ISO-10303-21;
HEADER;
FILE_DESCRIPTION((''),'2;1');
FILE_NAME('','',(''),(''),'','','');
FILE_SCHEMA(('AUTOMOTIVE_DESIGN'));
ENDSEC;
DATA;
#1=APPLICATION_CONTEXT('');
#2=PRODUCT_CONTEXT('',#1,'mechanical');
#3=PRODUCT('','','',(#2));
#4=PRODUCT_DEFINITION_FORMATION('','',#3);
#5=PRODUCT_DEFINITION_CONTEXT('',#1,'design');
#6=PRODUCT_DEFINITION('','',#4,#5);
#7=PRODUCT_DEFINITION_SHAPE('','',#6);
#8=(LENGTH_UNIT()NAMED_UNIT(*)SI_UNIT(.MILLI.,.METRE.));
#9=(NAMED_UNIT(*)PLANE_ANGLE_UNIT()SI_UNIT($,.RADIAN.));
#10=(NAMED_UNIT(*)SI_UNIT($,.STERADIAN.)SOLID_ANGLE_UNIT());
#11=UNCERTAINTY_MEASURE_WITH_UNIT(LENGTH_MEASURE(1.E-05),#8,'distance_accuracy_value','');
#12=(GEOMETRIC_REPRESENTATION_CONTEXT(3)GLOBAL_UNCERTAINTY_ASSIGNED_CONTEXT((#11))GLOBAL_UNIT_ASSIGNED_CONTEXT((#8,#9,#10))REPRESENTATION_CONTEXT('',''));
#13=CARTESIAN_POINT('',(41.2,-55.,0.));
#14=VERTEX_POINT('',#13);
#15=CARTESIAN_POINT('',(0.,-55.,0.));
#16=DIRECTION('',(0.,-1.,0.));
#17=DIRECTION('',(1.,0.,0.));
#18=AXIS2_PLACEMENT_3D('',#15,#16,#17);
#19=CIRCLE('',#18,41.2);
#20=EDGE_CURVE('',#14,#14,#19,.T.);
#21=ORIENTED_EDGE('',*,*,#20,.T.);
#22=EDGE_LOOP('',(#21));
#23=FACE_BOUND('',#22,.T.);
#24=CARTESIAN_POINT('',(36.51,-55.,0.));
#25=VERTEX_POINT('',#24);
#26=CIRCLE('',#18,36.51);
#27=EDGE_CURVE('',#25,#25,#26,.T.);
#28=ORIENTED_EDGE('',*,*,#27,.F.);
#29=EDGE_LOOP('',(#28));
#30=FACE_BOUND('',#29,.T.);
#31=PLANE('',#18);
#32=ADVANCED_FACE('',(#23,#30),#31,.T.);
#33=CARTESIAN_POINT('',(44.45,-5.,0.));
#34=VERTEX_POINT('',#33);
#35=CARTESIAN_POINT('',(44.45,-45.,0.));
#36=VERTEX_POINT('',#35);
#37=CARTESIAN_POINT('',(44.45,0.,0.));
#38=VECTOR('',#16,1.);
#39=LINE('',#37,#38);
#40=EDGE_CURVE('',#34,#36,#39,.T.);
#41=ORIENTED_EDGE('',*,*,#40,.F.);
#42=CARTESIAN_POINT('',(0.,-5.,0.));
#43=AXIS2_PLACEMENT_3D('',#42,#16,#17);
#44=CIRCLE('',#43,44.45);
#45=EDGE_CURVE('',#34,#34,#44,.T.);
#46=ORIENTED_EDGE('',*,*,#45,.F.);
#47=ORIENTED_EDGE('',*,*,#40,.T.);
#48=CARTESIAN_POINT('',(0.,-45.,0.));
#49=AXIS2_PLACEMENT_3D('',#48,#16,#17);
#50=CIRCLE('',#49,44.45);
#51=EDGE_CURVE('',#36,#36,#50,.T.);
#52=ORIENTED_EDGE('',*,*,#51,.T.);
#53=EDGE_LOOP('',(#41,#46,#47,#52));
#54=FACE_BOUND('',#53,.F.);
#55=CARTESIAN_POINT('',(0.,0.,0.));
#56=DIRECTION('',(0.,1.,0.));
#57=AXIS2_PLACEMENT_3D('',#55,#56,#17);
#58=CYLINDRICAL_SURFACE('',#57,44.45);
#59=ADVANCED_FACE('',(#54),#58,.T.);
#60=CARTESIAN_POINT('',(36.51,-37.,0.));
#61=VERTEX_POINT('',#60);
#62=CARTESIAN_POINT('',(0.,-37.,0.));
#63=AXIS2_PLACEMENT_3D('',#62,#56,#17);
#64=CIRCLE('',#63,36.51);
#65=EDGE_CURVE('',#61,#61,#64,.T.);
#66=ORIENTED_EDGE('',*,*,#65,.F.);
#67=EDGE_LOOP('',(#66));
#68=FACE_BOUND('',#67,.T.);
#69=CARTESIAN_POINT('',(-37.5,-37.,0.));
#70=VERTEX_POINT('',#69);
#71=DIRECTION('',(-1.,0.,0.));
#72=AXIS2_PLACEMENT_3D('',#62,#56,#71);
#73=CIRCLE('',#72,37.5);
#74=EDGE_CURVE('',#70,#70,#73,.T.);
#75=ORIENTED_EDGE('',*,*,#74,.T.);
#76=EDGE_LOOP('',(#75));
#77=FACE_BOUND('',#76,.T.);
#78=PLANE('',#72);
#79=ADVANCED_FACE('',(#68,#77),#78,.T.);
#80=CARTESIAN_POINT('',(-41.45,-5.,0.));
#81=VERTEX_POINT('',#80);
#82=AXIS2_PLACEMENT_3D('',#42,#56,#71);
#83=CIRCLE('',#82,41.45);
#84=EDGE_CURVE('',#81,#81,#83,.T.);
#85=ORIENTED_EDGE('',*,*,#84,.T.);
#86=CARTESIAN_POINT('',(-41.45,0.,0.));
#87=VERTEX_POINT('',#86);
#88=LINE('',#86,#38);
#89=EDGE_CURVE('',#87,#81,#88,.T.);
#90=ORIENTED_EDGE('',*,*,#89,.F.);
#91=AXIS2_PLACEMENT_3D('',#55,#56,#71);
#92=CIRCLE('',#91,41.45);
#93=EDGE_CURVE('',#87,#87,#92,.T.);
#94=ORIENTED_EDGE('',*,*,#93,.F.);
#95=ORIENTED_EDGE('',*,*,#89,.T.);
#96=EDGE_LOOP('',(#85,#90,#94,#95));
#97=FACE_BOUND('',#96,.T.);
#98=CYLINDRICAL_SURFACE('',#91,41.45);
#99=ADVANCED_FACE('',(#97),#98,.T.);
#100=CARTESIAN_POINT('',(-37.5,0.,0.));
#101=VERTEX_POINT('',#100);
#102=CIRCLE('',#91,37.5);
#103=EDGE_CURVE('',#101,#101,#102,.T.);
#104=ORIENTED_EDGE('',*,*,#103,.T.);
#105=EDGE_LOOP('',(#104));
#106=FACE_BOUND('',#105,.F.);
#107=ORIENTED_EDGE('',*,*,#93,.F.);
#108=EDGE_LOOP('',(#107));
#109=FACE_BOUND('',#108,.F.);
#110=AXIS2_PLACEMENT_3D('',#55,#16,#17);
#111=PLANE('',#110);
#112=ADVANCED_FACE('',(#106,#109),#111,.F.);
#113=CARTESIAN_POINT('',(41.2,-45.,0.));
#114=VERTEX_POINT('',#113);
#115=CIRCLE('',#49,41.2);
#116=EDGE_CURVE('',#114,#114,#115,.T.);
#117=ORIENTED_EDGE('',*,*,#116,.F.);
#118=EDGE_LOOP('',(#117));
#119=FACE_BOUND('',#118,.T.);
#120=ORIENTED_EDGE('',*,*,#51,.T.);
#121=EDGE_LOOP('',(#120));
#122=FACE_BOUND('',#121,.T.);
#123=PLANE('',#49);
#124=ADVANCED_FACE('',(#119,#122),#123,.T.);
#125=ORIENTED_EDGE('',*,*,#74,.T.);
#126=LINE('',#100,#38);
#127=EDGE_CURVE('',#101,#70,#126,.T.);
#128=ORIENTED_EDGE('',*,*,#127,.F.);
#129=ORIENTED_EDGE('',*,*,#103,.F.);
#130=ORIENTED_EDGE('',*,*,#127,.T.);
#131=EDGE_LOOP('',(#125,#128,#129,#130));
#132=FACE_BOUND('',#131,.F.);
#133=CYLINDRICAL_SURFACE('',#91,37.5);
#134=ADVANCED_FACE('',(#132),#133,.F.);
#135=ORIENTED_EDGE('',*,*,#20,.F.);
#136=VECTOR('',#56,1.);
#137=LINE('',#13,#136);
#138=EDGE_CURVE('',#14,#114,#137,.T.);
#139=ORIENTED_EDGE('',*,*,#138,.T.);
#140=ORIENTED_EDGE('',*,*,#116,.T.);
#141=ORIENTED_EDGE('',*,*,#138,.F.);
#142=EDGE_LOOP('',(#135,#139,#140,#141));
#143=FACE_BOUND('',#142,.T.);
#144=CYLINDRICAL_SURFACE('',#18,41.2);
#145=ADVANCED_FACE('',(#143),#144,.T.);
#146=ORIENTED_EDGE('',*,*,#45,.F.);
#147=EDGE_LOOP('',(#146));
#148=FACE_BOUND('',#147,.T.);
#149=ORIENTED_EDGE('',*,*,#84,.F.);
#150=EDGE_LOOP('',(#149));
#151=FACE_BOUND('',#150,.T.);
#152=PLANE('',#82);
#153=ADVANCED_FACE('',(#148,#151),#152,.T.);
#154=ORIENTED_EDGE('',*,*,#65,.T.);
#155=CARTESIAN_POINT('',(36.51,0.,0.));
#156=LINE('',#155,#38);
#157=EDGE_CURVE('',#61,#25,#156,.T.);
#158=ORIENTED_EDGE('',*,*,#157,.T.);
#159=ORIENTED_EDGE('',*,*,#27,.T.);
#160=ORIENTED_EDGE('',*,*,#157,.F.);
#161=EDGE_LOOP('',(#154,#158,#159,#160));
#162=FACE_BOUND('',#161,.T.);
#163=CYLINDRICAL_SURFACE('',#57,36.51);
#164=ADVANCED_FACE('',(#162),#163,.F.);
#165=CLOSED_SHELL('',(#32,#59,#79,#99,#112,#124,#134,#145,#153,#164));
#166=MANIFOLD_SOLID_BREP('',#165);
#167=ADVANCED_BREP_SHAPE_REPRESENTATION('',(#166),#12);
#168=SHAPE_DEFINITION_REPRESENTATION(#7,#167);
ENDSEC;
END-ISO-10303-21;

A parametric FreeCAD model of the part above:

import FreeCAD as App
import Part
import Sketcher
from FreeCAD import Vector

doc = App.newDocument("Part")
params = doc.addObject("Spreadsheet::Sheet", "Params")
for row, (alias, value) in enumerate([
    ("sketch1_diameter", "88.9 mm"),
    ("sketch1_diameter2", "73.02 mm"),
    ("pad1_length", "55 mm"),
    ("sketch2_diameter", "88.9 mm"),
    ("sketch2_diameter2", "82.4 mm"),
    ("pocket1_length", "10 mm"),
    ("sketch3_diameter", "88.9 mm"),
    ("sketch3_diameter2", "82.9 mm"),
    ("pocket2_length", "5 mm"),
    ("sketch4_diameter", "75 mm"),
    ("sketch4_diameter2", "73.02 mm"),
    ("pocket3_length", "37 mm"),
], start=1):
    params.set(f"A{row}", alias)
    params.set(f"B{row}", "=" + value)
    params.setAlias(f"B{row}", alias)

body = doc.addObject("PartDesign::Body", "Body")

# Sketch on XZ plane
sketch1 = body.newObject("Sketcher::SketchObject", "Sketch")
sketch1.AttachmentSupport = (doc.getObject("XZ_Plane"), [""])
sketch1.MapMode = "FlatFace"
sketch1.addGeometry([
    Part.Circle(Vector(0, 0, 0), Vector(0, 0, 1), 44),
    Part.Circle(Vector(0, 0, 0), Vector(0, 0, 1), 37),
], False)
sketch1.addConstraint([
    Sketcher.Constraint("Coincident", 0, 3, -1, 1),
    Sketcher.Constraint("Coincident", 1, 3, -1, 1),
    Sketcher.Constraint("Diameter", 0, 88.9),
    Sketcher.Constraint("Diameter", 1, 73.02),
])
sketch1.setExpression("Constraints[2]", "Params.sketch1_diameter")
sketch1.setExpression("Constraints[3]", "Params.sketch1_diameter2")
pad1 = body.newObject("PartDesign::Pad", "Pad")
pad1.Profile = sketch1
pad1.setExpression("Length", "Params.pad1_length")

# Sketch on XZ plane
sketch2 = body.newObject("Sketcher::SketchObject", "Sketch001")
sketch2.AttachmentSupport = (doc.getObject("XZ_Plane"), [""])
sketch2.MapMode = "FlatFace"
sketch2.AttachmentOffset = App.Placement(Vector(0, 0, 55), App.Rotation())
sketch2.addGeometry([
    Part.Circle(Vector(0, 0, 0), Vector(0, 0, 1), 44),
    Part.Circle(Vector(0, 0, 0), Vector(0, 0, 1), 41),
], False)
sketch2.addConstraint([
    Sketcher.Constraint("Coincident", 0, 3, -1, 1),
    Sketcher.Constraint("Coincident", 1, 3, -1, 1),
    Sketcher.Constraint("Diameter", 0, 88.9),
    Sketcher.Constraint("Diameter", 1, 82.4),
])
sketch2.setExpression("Constraints[2]", "Params.sketch2_diameter")
sketch2.setExpression("Constraints[3]", "Params.sketch2_diameter2")
pocket1 = body.newObject("PartDesign::Pocket", "Pocket")
pocket1.Profile = sketch2
pocket1.setExpression("Length", "Params.pocket1_length")

# Sketch on XZ plane
sketch3 = body.newObject("Sketcher::SketchObject", "Sketch002")
sketch3.AttachmentSupport = (doc.getObject("XZ_Plane"), [""])
sketch3.MapMode = "FlatFace"
sketch3.addGeometry([
    Part.Circle(Vector(0, 0, 0), Vector(0, 0, 1), 44),
    Part.Circle(Vector(0, 0, 0), Vector(0, 0, 1), 41),
], False)
sketch3.addConstraint([
    Sketcher.Constraint("Coincident", 0, 3, -1, 1),
    Sketcher.Constraint("Coincident", 1, 3, -1, 1),
    Sketcher.Constraint("Diameter", 0, 88.9),
    Sketcher.Constraint("Diameter", 1, 82.9),
])
sketch3.setExpression("Constraints[2]", "Params.sketch3_diameter")
sketch3.setExpression("Constraints[3]", "Params.sketch3_diameter2")
pocket2 = body.newObject("PartDesign::Pocket", "Pocket001")
pocket2.Profile = sketch3
pocket2.setExpression("Length", "Params.pocket2_length")
pocket2.Reversed = True

# Sketch on XZ plane
sketch4 = body.newObject("Sketcher::SketchObject", "Sketch003")
sketch4.AttachmentSupport = (doc.getObject("XZ_Plane"), [""])
sketch4.MapMode = "FlatFace"
sketch4.addGeometry([
    Part.Circle(Vector(0, 0, 0), Vector(0, 0, 1), 38),
    Part.Circle(Vector(0, 0, 0), Vector(0, 0, 1), 37),
], False)
sketch4.addConstraint([
    Sketcher.Constraint("Coincident", 0, 3, -1, 1),
    Sketcher.Constraint("Coincident", 1, 3, -1, 1),
    Sketcher.Constraint("Diameter", 0, 75.0),
    Sketcher.Constraint("Diameter", 1, 73.02),
])
sketch4.setExpression("Constraints[2]", "Params.sketch4_diameter")
sketch4.setExpression("Constraints[3]", "Params.sketch4_diameter2")
pocket3 = body.newObject("PartDesign::Pocket", "Pocket002")
pocket3.Profile = sketch4
pocket3.setExpression("Length", "Params.pocket3_length")
pocket3.Reversed = True

doc.recompute()
